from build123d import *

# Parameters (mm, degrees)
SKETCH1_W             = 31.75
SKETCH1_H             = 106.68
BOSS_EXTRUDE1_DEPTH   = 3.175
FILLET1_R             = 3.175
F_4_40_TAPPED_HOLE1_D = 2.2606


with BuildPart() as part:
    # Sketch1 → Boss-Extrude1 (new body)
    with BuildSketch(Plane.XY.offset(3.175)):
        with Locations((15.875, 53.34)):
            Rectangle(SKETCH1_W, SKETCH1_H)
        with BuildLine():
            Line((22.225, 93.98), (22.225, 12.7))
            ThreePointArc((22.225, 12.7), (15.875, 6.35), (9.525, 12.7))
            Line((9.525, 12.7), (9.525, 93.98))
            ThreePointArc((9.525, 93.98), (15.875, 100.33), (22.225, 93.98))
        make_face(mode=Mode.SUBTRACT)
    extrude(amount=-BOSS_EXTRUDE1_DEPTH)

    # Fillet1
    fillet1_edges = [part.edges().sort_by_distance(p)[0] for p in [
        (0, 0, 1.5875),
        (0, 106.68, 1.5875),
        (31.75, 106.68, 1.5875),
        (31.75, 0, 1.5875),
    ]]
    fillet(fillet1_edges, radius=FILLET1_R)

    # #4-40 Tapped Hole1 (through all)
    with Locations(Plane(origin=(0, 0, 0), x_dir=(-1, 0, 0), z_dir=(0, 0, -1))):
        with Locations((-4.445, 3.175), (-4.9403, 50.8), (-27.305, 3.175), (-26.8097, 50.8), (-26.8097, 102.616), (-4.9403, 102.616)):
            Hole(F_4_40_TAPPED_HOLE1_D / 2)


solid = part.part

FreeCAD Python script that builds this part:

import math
import FreeCAD as App
import Part
import Sketcher
Q = App.Units.Quantity


def edges_at(feature, points):
    """Names of the edges that pass closest to the given points."""
    edges = feature.Shape.Edges
    near = lambda p: min(range(len(edges)), key=lambda i: edges[i].distToShape(Part.Vertex(*p))[0])
    return sorted({f"Edge{near(p) + 1}" for p in points})

doc = App.newDocument("Part")
body = doc.addObject("PartDesign::Body", "Body")

# Sketch on XY plane
sketch1 = body.newObject("Sketcher::SketchObject", "Sketch")
sketch1.AttachmentSupport = (doc.getObject("XY_Plane"), [""])
sketch1.MapMode = "FlatFace"
sketch1.AttachmentOffset = App.Placement(App.Vector(0, 0, 0.125 * 25.4), App.Rotation())
sketch1.addGeometry(Part.LineSegment(App.Vector(0, 106.68, 0), App.Vector(0, 0, 0)), False)
sketch1.addGeometry(Part.LineSegment(App.Vector(0, 0, 0), App.Vector(31.75, 0, 0)), False)
sketch1.addGeometry(Part.LineSegment(App.Vector(31.75, 0, 0), App.Vector(31.75, 106.68, 0)), False)
sketch1.addGeometry(Part.LineSegment(App.Vector(31.75, 106.68, 0), App.Vector(0, 106.68, 0)), False)
sketch1.addGeometry(Part.ArcOfCircle(Part.Circle(App.Vector(15.875, 93.98, 0), App.Vector(0, 0, 1), 6.35), math.radians(0), math.radians(180)), False)
sketch1.addGeometry(Part.LineSegment(App.Vector(22.225, 93.98, 0), App.Vector(22.225, 12.7, 0)), False)
sketch1.addGeometry(Part.ArcOfCircle(Part.Circle(App.Vector(15.875, 12.7, 0), App.Vector(0, 0, 1), 6.35), math.radians(180), math.radians(360)), False)
sketch1.addGeometry(Part.LineSegment(App.Vector(9.525, 12.7, 0), App.Vector(9.525, 93.98, 0)), False)
sketch1.addConstraint(Sketcher.Constraint("Coincident", 0, 2, 1, 1))
sketch1.addConstraint(Sketcher.Constraint("Coincident", 1, 2, 2, 1))
sketch1.addConstraint(Sketcher.Constraint("Coincident", 2, 2, 3, 1))
sketch1.addConstraint(Sketcher.Constraint("Coincident", 3, 2, 0, 1))
sketch1.addConstraint(Sketcher.Constraint("Tangent", 4, 1, 5, 1))
sketch1.addConstraint(Sketcher.Constraint("Tangent", 5, 2, 6, 2))
sketch1.addConstraint(Sketcher.Constraint("Tangent", 6, 1, 7, 1))
sketch1.addConstraint(Sketcher.Constraint("Tangent", 7, 2, 4, 2))
sketch1.addConstraint(Sketcher.Constraint("Vertical", 0))
sketch1.addConstraint(Sketcher.Constraint("Horizontal", 1))
sketch1.addConstraint(Sketcher.Constraint("Vertical", 2))
sketch1.addConstraint(Sketcher.Constraint("Horizontal", 3))
sketch1.addConstraint(Sketcher.Constraint("Vertical", 5))
sketch1.addConstraint(Sketcher.Constraint("Vertical", 7))
sketch1.addConstraint(Sketcher.Constraint("Coincident", 0, 2, -1, 1))
sketch1.addConstraint(Sketcher.Constraint("Radius", 4, Q("0.25 in")))
sketch1.addConstraint(Sketcher.Constraint("DistanceY", 0, 2, 0, 1, Q("4.2 in")))
sketch1.addConstraint(Sketcher.Constraint("DistanceY", 5, 2, 5, 1, Q("3.2 in")))
sketch1.addConstraint(Sketcher.Constraint("DistanceX", 1, 1, 1, 2, Q("1.25 in")))
sketch1.addConstraint(Sketcher.Constraint("DistanceY", -1, 1, 4, 3, Q("3.7 in")))
sketch1.addConstraint(Sketcher.Constraint("DistanceX", -1, 1, 4, 3, Q("0.625 in")))
pad1 = body.newObject("PartDesign::Pad", "Pad")
pad1.Profile = sketch1
pad1.Length = Q("0.125 in")
pad1.Reversed = True
doc.recompute()

fillet = body.newObject("PartDesign::Fillet", "Fillet")
fillet.Base = (pad1, edges_at(pad1, [
    (0, 0, 1.587),
    (0, 106.68, 1.587),
    (31.75, 106.68, 1.587),
    (31.75, 0, 1.587),
]))
fillet.Radius = Q("0.125 in")

# Sketch on XY plane
sketch2 = body.newObject("Sketcher::SketchObject", "Sketch001")
sketch2.AttachmentSupport = (doc.getObject("XY_Plane"), [""])
sketch2.MapMode = "FlatFace"
sketch2.addGeometry(Part.Circle(App.Vector(4.445, 3.175, 0), App.Vector(0, 0, 1), 1.1303), False)
sketch2.addGeometry(Part.Circle(App.Vector(4.9403, 50.8, 0), App.Vector(0, 0, 1), 1.1303), False)
sketch2.addGeometry(Part.Circle(App.Vector(27.305, 3.175, 0), App.Vector(0, 0, 1), 1.1303), False)
sketch2.addGeometry(Part.Circle(App.Vector(26.8097, 50.8, 0), App.Vector(0, 0, 1), 1.1303), False)
sketch2.addGeometry(Part.Circle(App.Vector(26.8097, 102.616, 0), App.Vector(0, 0, 1), 1.1303), False)
sketch2.addGeometry(Part.Circle(App.Vector(4.9403, 102.616, 0), App.Vector(0, 0, 1), 1.1303), False)
sketch2.addConstraint(Sketcher.Constraint("Equal", 0, 1))
sketch2.addConstraint(Sketcher.Constraint("Equal", 1, 2))
sketch2.addConstraint(Sketcher.Constraint("Equal", 2, 3))
sketch2.addConstraint(Sketcher.Constraint("Equal", 3, 4))
sketch2.addConstraint(Sketcher.Constraint("Equal", 4, 5))
sketch2.addConstraint(Sketcher.Constraint("Horizontal", 0, 3, 2, 3))
sketch2.addConstraint(Sketcher.Constraint("Horizontal", 1, 3, 3, 3))
sketch2.addConstraint(Sketcher.Constraint("Horizontal", 4, 3, 5, 3))
sketch2.addConstraint(Sketcher.Constraint("Vertical", 3, 3, 4, 3))
sketch2.addConstraint(Sketcher.Constraint("Vertical", 1, 3, 5, 3))
sketch2.addConstraint(Sketcher.Constraint("Diameter", 0, Q("0.089 in")))
sketch2.addConstraint(Sketcher.Constraint("DistanceY", -1, 1, 1, 3, Q("2 in")))
sketch2.addConstraint(Sketcher.Constraint("DistanceX", 0, 3, 2, 3, Q("0.9 in")))
sketch2.addConstraint(Sketcher.Constraint("DistanceY", -1, 1, 4, 3, Q("4.04 in")))
sketch2.addConstraint(Sketcher.Constraint("DistanceX", -1, 1, 0, 3, Q("0.175 in")))
sketch2.addConstraint(Sketcher.Constraint("DistanceY", -1, 1, 0, 3, Q("0.125 in")))
sketch2.addConstraint(Sketcher.Constraint("DistanceX", 1, 3, 3, 3, Q("0.861 in")))
sketch2.addConstraint(Sketcher.Constraint("DistanceX", -1, 1, 1, 3, Q("0.1945 in")))
doc.recompute()
hole = body.newObject("PartDesign::Hole", "Hole")
hole.Profile = sketch2
hole.ThreadType = "None"
hole.Diameter = Q("0.089 in")
hole.DepthType = "ThroughAll"
hole.Reversed = True

doc.recompute()
